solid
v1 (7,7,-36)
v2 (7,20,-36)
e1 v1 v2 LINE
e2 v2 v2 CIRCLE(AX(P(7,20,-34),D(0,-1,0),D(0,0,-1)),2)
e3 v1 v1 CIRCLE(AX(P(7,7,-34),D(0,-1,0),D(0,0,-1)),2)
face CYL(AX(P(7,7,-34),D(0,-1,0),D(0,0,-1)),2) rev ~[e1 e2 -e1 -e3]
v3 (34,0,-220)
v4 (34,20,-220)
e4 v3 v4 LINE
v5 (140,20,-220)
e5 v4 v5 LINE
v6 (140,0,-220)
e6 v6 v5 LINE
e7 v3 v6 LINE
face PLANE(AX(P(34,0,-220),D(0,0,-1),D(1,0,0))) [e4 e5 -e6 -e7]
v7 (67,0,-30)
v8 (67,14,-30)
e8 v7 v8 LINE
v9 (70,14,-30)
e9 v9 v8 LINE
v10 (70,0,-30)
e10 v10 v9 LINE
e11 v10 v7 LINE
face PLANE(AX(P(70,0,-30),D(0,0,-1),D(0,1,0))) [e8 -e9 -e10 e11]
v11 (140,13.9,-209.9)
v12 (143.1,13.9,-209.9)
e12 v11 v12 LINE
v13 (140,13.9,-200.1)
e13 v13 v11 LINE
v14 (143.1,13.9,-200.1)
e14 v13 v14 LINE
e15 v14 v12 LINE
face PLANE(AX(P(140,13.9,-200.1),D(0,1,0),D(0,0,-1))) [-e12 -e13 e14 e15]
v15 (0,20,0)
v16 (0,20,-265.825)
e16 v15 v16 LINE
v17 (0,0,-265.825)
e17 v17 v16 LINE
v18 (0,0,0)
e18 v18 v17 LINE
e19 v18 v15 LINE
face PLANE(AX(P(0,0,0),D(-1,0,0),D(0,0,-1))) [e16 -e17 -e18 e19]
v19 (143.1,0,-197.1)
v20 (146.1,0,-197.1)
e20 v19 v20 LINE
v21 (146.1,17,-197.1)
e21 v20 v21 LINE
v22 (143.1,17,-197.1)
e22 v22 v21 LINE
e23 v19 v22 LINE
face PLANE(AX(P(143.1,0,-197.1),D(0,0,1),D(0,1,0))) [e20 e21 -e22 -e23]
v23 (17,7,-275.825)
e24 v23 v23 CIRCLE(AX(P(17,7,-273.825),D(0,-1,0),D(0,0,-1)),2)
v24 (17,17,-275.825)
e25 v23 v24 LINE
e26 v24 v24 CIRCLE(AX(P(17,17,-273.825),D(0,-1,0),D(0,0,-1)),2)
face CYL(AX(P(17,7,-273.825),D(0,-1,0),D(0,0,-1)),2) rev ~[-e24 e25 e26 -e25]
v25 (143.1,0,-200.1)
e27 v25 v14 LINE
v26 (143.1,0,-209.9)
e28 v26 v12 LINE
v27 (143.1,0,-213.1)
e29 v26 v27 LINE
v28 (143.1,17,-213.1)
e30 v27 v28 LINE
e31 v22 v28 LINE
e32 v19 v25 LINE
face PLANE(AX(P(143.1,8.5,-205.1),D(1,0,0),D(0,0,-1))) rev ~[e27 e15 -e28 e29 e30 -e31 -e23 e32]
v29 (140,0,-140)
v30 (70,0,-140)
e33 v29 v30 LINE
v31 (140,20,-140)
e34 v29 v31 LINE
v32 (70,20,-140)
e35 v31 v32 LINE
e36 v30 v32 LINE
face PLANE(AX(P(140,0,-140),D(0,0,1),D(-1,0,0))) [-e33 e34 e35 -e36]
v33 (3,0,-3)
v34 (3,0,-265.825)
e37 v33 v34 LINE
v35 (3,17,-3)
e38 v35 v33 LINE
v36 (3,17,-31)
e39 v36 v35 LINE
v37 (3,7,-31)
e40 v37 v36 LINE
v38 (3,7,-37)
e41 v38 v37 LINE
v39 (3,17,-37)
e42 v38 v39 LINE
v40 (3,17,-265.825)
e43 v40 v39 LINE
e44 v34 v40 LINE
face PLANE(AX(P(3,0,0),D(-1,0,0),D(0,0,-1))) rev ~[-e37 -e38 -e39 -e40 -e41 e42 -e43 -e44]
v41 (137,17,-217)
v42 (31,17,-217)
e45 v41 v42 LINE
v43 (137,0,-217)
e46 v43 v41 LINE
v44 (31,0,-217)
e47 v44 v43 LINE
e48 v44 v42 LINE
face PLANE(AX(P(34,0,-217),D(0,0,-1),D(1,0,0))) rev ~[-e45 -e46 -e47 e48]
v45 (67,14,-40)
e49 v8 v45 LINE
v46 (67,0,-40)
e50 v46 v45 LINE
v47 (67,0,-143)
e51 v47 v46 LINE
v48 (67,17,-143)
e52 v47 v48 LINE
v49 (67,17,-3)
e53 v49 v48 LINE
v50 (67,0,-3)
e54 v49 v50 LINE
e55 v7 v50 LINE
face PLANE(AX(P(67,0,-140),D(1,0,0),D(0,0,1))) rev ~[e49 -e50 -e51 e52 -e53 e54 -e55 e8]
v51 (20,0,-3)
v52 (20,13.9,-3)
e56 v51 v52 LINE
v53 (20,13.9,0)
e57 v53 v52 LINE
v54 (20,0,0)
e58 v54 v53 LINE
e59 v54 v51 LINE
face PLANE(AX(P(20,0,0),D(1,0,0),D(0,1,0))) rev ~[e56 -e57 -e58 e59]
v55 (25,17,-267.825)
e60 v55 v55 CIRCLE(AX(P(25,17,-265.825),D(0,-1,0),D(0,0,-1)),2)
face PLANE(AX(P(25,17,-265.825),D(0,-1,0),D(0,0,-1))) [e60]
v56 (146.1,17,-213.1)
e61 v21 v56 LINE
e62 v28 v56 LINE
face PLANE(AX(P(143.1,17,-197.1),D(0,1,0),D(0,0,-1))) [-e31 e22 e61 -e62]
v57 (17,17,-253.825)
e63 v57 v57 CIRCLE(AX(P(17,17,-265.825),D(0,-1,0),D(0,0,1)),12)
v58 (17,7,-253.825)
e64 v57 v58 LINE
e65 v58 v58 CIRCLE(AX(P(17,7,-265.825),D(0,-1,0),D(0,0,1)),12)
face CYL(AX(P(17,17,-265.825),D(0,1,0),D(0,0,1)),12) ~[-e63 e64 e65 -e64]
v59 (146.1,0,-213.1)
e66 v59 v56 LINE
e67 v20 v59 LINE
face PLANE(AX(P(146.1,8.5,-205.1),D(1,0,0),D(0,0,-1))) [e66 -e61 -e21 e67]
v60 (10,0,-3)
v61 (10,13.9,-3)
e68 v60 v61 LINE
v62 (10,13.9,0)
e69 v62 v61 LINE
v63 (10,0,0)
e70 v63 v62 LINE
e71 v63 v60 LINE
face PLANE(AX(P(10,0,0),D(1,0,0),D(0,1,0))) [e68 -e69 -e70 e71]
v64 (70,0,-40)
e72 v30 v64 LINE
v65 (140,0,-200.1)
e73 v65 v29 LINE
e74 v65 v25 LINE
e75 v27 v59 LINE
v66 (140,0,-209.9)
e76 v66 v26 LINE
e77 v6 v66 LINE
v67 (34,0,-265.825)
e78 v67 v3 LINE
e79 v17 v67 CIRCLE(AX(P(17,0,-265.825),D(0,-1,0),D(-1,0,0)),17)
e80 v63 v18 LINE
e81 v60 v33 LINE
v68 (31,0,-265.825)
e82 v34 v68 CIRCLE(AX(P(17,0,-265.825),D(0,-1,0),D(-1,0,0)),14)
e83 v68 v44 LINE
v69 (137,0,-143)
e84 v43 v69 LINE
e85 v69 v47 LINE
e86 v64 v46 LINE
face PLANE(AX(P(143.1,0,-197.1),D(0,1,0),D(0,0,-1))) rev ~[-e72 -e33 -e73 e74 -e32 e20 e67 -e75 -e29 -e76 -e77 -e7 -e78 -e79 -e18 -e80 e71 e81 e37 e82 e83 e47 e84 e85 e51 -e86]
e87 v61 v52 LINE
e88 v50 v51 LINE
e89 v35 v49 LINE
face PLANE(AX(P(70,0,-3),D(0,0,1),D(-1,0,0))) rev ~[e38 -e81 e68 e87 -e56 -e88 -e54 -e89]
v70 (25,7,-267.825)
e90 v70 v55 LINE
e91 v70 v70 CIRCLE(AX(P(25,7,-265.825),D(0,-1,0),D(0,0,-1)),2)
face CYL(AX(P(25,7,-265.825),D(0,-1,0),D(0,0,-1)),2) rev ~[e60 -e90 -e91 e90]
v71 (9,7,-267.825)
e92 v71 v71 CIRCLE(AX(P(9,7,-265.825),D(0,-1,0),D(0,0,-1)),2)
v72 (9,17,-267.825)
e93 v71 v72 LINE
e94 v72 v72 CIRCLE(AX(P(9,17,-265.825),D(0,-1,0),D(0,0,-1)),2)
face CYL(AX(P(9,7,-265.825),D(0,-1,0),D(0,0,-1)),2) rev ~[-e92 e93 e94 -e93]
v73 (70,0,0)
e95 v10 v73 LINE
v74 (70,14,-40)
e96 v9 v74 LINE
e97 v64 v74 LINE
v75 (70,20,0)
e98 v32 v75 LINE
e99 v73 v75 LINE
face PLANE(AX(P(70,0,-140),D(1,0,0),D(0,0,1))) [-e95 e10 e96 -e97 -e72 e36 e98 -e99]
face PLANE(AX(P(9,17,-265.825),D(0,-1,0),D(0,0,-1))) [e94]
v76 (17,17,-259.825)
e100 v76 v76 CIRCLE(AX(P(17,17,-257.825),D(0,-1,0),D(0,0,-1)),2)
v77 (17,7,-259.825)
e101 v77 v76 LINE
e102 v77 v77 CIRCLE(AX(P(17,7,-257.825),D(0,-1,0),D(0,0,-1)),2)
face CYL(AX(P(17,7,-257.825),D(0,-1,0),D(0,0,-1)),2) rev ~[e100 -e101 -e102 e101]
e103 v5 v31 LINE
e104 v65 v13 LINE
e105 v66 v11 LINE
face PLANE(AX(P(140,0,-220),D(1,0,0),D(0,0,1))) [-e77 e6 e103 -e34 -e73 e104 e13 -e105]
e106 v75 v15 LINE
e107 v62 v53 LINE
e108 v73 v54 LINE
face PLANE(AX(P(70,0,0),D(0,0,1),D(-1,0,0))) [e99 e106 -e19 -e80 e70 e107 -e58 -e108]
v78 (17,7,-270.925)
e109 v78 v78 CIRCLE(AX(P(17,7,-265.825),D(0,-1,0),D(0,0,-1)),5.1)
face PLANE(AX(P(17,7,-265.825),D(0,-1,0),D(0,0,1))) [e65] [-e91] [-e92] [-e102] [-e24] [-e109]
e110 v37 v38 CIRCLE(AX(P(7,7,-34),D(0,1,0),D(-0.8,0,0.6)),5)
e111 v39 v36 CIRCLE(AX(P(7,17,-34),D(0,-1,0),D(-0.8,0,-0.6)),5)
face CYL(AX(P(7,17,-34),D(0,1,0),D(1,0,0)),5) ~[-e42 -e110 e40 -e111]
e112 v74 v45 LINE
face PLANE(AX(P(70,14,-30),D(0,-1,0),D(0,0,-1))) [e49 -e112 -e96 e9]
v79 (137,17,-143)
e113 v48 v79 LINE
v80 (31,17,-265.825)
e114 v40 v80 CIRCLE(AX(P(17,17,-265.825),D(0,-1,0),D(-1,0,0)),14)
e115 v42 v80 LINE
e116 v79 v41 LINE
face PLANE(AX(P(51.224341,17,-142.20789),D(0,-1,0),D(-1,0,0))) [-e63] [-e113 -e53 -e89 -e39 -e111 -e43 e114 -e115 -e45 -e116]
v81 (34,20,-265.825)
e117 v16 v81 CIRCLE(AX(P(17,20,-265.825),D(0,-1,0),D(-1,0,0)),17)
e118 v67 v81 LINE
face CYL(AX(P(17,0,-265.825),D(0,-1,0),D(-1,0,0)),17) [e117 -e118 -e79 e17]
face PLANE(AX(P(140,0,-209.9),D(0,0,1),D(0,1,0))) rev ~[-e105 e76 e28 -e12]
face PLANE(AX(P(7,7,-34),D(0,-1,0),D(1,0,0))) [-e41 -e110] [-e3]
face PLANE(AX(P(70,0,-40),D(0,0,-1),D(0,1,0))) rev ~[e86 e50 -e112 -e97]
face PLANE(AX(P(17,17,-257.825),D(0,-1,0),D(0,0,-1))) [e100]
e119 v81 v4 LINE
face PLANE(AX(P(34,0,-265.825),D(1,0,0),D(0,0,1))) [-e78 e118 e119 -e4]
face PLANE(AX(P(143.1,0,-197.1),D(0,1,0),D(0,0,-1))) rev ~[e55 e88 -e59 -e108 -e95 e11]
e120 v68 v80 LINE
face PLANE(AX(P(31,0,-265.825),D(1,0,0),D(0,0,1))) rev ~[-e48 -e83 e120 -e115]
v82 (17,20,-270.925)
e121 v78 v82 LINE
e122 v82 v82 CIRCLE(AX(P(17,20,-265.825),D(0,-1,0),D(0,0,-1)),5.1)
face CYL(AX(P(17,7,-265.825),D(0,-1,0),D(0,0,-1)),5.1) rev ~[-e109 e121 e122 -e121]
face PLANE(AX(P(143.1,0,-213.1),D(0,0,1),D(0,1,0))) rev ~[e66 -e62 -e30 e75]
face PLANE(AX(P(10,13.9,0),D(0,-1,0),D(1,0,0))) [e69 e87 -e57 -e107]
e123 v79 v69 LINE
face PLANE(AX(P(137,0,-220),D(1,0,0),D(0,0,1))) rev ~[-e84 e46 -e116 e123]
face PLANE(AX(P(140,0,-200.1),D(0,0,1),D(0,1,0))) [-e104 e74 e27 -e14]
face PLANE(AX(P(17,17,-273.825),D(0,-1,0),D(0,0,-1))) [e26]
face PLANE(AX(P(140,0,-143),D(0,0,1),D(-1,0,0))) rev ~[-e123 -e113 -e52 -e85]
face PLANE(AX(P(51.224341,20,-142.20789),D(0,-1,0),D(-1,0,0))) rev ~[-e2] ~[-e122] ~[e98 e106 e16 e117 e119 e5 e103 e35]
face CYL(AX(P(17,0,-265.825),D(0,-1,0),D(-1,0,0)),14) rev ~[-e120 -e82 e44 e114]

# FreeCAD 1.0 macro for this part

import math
import FreeCAD as App
import Part
import Sketcher
Q = App.Units.Quantity


def faces_at(feature, points):
    """Names of the faces that lie closest to the given points."""
    faces = feature.Shape.Faces
    near = lambda p: min(range(len(faces)), key=lambda i: faces[i].distToShape(Part.Vertex(*p))[0])
    return sorted({f"Face{near(p) + 1}" for p in points})

doc = App.newDocument("Part")
body = doc.addObject("PartDesign::Body", "Body")

sketch1 = body.newObject("Sketcher::SketchObject", "Sketch")
sketch1.AttachmentSupport = (doc.getObject("XZ_Plane"), [""])
sketch1.MapMode = "FlatFace"
sketch1.addGeometry([
    Part.LineSegment(App.Vector(140, -140, 0), App.Vector(140, -220, 0)),
    Part.LineSegment(App.Vector(140, -220, 0), App.Vector(34, -220, 0)),
    Part.LineSegment(App.Vector(34, -220, 0), App.Vector(34, -266, 0)),
    Part.ArcOfCircle(Part.Circle(App.Vector(17, -266, 0), App.Vector(0, 0, 1), 17), math.radians(180), math.radians(360)),
    Part.LineSegment(App.Vector(0, -266, 0), App.Vector(0, 0, 0)),
    Part.LineSegment(App.Vector(0, 0, 0), App.Vector(70, 0, 0)),
    Part.LineSegment(App.Vector(70, 0, 0), App.Vector(70, -140, 0)),
    Part.LineSegment(App.Vector(70, -140, 0), App.Vector(140, -140, 0)),
], False)
sketch1.addConstraint([
    Sketcher.Constraint("Coincident", 0, 2, 1, 1),
    Sketcher.Constraint("Coincident", 1, 2, 2, 1),
    Sketcher.Constraint("Tangent", 2, 2, 3, 2),
    Sketcher.Constraint("Tangent", 3, 1, 4, 1),
    Sketcher.Constraint("Coincident", 4, 2, 5, 1),
    Sketcher.Constraint("Coincident", 5, 2, 6, 1),
    Sketcher.Constraint("Coincident", 6, 2, 7, 1),
    Sketcher.Constraint("Coincident", 7, 2, 0, 1),
    Sketcher.Constraint("Vertical", 0),
    Sketcher.Constraint("Horizontal", 1),
    Sketcher.Constraint("Vertical", 2),
    Sketcher.Constraint("Vertical", 4),
    Sketcher.Constraint("Horizontal", 5),
    Sketcher.Constraint("Vertical", 6),
    Sketcher.Constraint("Horizontal", 7),
    Sketcher.Constraint("Coincident", 4, 2, -1, 1),
    Sketcher.Constraint("Equal", 5, 7),
    Sketcher.Constraint("Radius", 3, Q("17 mm")),
    Sketcher.Constraint("DistanceX", 1, 2, 1, 1, Q("106 mm")),
    Sketcher.Constraint("DistanceY", 0, 2, 0, 1, Q("80 mm")),
    Sketcher.Constraint("DistanceY", 6, 2, 6, 1, Q("140 mm")),
    Sketcher.Constraint("DistanceY", 2, 2, 2, 1, Q("45.825 mm")),
])
pad1 = body.newObject("PartDesign::Pad", "Pad")
pad1.Profile = sketch1
pad1.Length = 20
pad1.Reversed = True
doc.recompute()

thickness = body.newObject("PartDesign::Thickness", "Thickness")
thickness.Base = (pad1, faces_at(pad1, [(70, 0, -141.412)]))
thickness.Value = 3
thickness.Reversed = True
thickness.Join = "Intersection"

sketch2 = body.newObject("Sketcher::SketchObject", "Sketch001")
sketch2.AttachmentSupport = (doc.getObject("XZ_Plane"), [""])
sketch2.MapMode = "FlatFace"
sketch2.AttachmentOffset = App.Placement(App.Vector(0, 0, -17), App.Rotation())
sketch2.addGeometry([
    Part.Circle(App.Vector(17, -266, 0), App.Vector(0, 0, 1), 12),
    Part.Circle(App.Vector(7, -34, 0), App.Vector(0, 0, 1), 5),
], False)
sketch2.addConstraint([
    Sketcher.Constraint("Diameter", 0, Q("24 mm")),
    Sketcher.Constraint("Diameter", 1, Q("10 mm")),
    Sketcher.Constraint("DistanceX", -1, 1, 0, 3, Q("17 mm")),
    Sketcher.Constraint("DistanceX", -1, 1, 1, 3, Q("7 mm")),
    Sketcher.Constraint("DistanceY", 1, 3, -1, 1, Q("34 mm")),
    Sketcher.Constraint("DistanceY", 0, 3, -1, 1, Q("265.825 mm")),
])
pad2 = body.newObject("PartDesign::Pad", "Pad001")
pad2.Profile = sketch2
pad2.Length = 10

sketch3 = body.newObject("Sketcher::SketchObject", "Sketch002")
sketch3.AttachmentSupport = (doc.getObject("XZ_Plane"), [""])
sketch3.MapMode = "FlatFace"
sketch3.AttachmentOffset = App.Placement(App.Vector(0, 0, -7), App.Rotation())
sketch3.addGeometry([
    Part.Circle(App.Vector(17, -265.8, 0), App.Vector(0, 0, 1), 5.1),
    Part.Circle(App.Vector(7, -34, 0), App.Vector(0, 0, 1), 2),
], False)
sketch3.addConstraint([
    Sketcher.Constraint("Diameter", 1, Q("4 mm")),
    Sketcher.Constraint("Diameter", 0, Q("10.2 mm")),
    Sketcher.Constraint("DistanceX", -1, 1, 0, 3, Q("17 mm")),
    Sketcher.Constraint("DistanceX", -1, 1, 1, 3, Q("7 mm")),
    Sketcher.Constraint("DistanceY", 1, 3, -1, 1, Q("34 mm")),
    Sketcher.Constraint("DistanceY", 0, 3, -1, 1, Q("265.825 mm")),
])
pocket1 = body.newObject("PartDesign::Pocket", "Pocket")
pocket1.Profile = sketch3
pocket1.Type = "ThroughAll"

sketch4 = body.newObject("Sketcher::SketchObject", "Sketch003")
sketch4.AttachmentSupport = (doc.getObject("XZ_Plane"), [""])
sketch4.MapMode = "FlatFace"
sketch4.AttachmentOffset = App.Placement(App.Vector(0, 0, -7), App.Rotation())
sketch4.addGeometry([
    Part.Circle(App.Vector(17, -273.8, 0), App.Vector(0, 0, 1), 2),
    Part.Circle(App.Vector(9, -265.8, 0), App.Vector(0, 0, 1), 2),
    Part.Circle(App.Vector(17, -257.8, 0), App.Vector(0, 0, 1), 2),
    Part.Circle(App.Vector(25, -265.8, 0), App.Vector(0, 0, 1), 2),
], False)
sketch4.addConstraint([
    Sketcher.Constraint("Equal", 0, 1),
    Sketcher.Constraint("Equal", 1, 2),
    Sketcher.Constraint("Equal", 2, 3),
    Sketcher.Constraint("Horizontal", 1, 3, 3, 3),
    Sketcher.Constraint("Vertical", 0, 3, 2, 3),
    Sketcher.Constraint("Diameter", 0, Q("4 mm")),
    Sketcher.Constraint("DistanceX", -1, 1, 0, 3, Q("17 mm")),
    Sketcher.Constraint("DistanceX", -1, 1, 1, 3, Q("9 mm")),
    Sketcher.Constraint("DistanceX", -1, 1, 3, 3, Q("25 mm")),
    Sketcher.Constraint("DistanceY", 0, 3, 1, 3, Q("8 mm")),
    Sketcher.Constraint("DistanceY", 1, 3, 2, 3, Q("8 mm")),
    Sketcher.Constraint("DistanceY", 0, 3, -1, 1, Q("273.825 mm")),
])
pocket2 = body.newObject("PartDesign::Pocket", "Pocket001")
pocket2.Profile = sketch4
pocket2.Length = 10

sketch5 = body.newObject("Sketcher::SketchObject", "Sketch004")
sketch5.AttachmentSupport = (doc.getObject("YZ_Plane"), [""])
sketch5.MapMode = "FlatFace"
sketch5.AttachmentOffset = App.Placement(App.Vector(0, 0, 140), App.Rotation())
sketch5.addGeometry([
    Part.LineSegment(App.Vector(14, -200, 0), App.Vector(0, -200, 0)),
    Part.LineSegment(App.Vector(0, -200, 0), App.Vector(0, -210, 0)),
    Part.LineSegment(App.Vector(0, -210, 0), App.Vector(14, -210, 0)),
    Part.LineSegment(App.Vector(14, -210, 0), App.Vector(14, -200, 0)),
], False)
sketch5.addConstraint([
    Sketcher.Constraint("Coincident", 0, 2, 1, 1),
    Sketcher.Constraint("Coincident", 1, 2, 2, 1),
    Sketcher.Constraint("Coincident", 2, 2, 3, 1),
    Sketcher.Constraint("Coincident", 3, 2, 0, 1),
    Sketcher.Constraint("Horizontal", 0),
    Sketcher.Constraint("Vertical", 1),
    Sketcher.Constraint("Horizontal", 2),
    Sketcher.Constraint("Vertical", 3),
    Sketcher.Constraint("PointOnObject", 0, 2, -2),
    Sketcher.Constraint("DistanceX", 0, 2, 0, 1, Q("13.9 mm")),
    Sketcher.Constraint("DistanceY", 1, 2, 1, 1, Q("9.8 mm")),
    Sketcher.Constraint("DistanceY", 0, 2, -1, 1, Q("200.1 mm")),
])
pad3 = body.newObject("PartDesign::Pad", "Pad002")
pad3.Profile = sketch5
pad3.Length = 3.1

sketch6 = body.newObject("Sketcher::SketchObject", "Sketch005")
sketch6.AttachmentSupport = (doc.getObject("YZ_Plane"), [""])
sketch6.MapMode = "FlatFace"
sketch6.AttachmentOffset = App.Placement(App.Vector(0, 0, 143.1), App.Rotation())
sketch6.addGeometry([
    Part.LineSegment(App.Vector(17, -197, 0), App.Vector(0, -197, 0)),
    Part.LineSegment(App.Vector(0, -197, 0), App.Vector(0, -213, 0)),
    Part.LineSegment(App.Vector(0, -213, 0), App.Vector(17, -213, 0)),
    Part.LineSegment(App.Vector(17, -213, 0), App.Vector(17, -197, 0)),
], False)
sketch6.addConstraint([
    Sketcher.Constraint("Coincident", 0, 2, 1, 1),
    Sketcher.Constraint("Coincident", 1, 2, 2, 1),
    Sketcher.Constraint("Coincident", 2, 2, 3, 1),
    Sketcher.Constraint("Coincident", 3, 2, 0, 1),
    Sketcher.Constraint("Horizontal", 0),
    Sketcher.Constraint("Vertical", 1),
    Sketcher.Constraint("Horizontal", 2),
    Sketcher.Constraint("Vertical", 3),
    Sketcher.Constraint("PointOnObject", 0, 2, -2),
    Sketcher.Constraint("DistanceX", 0, 2, 0, 1, Q("17 mm")),
    Sketcher.Constraint("DistanceY", 1, 2, 1, 1, Q("16 mm")),
    Sketcher.Constraint("DistanceY", 0, 2, -1, 1, Q("197.1 mm")),
])
pad4 = body.newObject("PartDesign::Pad", "Pad003")
pad4.Profile = sketch6
pad4.Length = 3

sketch7 = body.newObject("Sketcher::SketchObject", "Sketch006")
sketch7.AttachmentSupport = (doc.getObject("XY_Plane"), [""])
sketch7.MapMode = "FlatFace"
sketch7.addGeometry([
    Part.LineSegment(App.Vector(10, 14, 0), App.Vector(10, 0, 0)),
    Part.LineSegment(App.Vector(10, 0, 0), App.Vector(20, 0, 0)),
    Part.LineSegment(App.Vector(20, 0, 0), App.Vector(20, 14, 0)),
    Part.LineSegment(App.Vector(20, 14, 0), App.Vector(10, 14, 0)),
], False)
sketch7.addConstraint([
    Sketcher.Constraint("Coincident", 0, 2, 1, 1),
    Sketcher.Constraint("Coincident", 1, 2, 2, 1),
    Sketcher.Constraint("Coincident", 2, 2, 3, 1),
    Sketcher.Constraint("Coincident", 3, 2, 0, 1),
    Sketcher.Constraint("Vertical", 0),
    Sketcher.Constraint("Horizontal", 1),
    Sketcher.Constraint("Vertical", 2),
    Sketcher.Constraint("Horizontal", 3),
    Sketcher.Constraint("PointOnObject", 0, 2, -1),
    Sketcher.Constraint("DistanceX", 1, 1, 1, 2, Q("10 mm")),
    Sketcher.Constraint("DistanceY", 0, 2, 0, 1, Q("13.9 mm")),
    Sketcher.Constraint("DistanceX", -1, 1, 0, 2, Q("10 mm")),
])
pocket3 = body.newObject("PartDesign::Pocket", "Pocket002")
pocket3.Profile = sketch7
pocket3.Length = 3

sketch8 = body.newObject("Sketcher::SketchObject", "Sketch007")
sketch8.AttachmentSupport = (doc.getObject("YZ_Plane"), [""])
sketch8.MapMode = "FlatFace"
sketch8.AttachmentOffset = App.Placement(App.Vector(0, 0, 70), App.Rotation())
sketch8.addGeometry([
    Part.LineSegment(App.Vector(14, -30, 0), App.Vector(0, -30, 0)),
    Part.LineSegment(App.Vector(0, -30, 0), App.Vector(0, -40, 0)),
    Part.LineSegment(App.Vector(0, -40, 0), App.Vector(14, -40, 0)),
    Part.LineSegment(App.Vector(14, -40, 0), App.Vector(14, -30, 0)),
], False)
sketch8.addConstraint([
    Sketcher.Constraint("Coincident", 0, 2, 1, 1),
    Sketcher.Constraint("Coincident", 1, 2, 2, 1),
    Sketcher.Constraint("Coincident", 2, 2, 3, 1),
    Sketcher.Constraint("Coincident", 3, 2, 0, 1),
    Sketcher.Constraint("Horizontal", 0),
    Sketcher.Constraint("Vertical", 1),
    Sketcher.Constraint("Horizontal", 2),
    Sketcher.Constraint("Vertical", 3),
    Sketcher.Constraint("PointOnObject", 0, 2, -2),
    Sketcher.Constraint("DistanceX", 0, 2, 0, 1, Q("14 mm")),
    Sketcher.Constraint("DistanceY", 1, 2, 1, 1, Q("10 mm")),
    Sketcher.Constraint("DistanceY", 0, 2, -1, 1, Q("30 mm")),
])
pocket4 = body.newObject("PartDesign::Pocket", "Pocket003")
pocket4.Profile = sketch8
pocket4.Length = 3

doc.recompute()
